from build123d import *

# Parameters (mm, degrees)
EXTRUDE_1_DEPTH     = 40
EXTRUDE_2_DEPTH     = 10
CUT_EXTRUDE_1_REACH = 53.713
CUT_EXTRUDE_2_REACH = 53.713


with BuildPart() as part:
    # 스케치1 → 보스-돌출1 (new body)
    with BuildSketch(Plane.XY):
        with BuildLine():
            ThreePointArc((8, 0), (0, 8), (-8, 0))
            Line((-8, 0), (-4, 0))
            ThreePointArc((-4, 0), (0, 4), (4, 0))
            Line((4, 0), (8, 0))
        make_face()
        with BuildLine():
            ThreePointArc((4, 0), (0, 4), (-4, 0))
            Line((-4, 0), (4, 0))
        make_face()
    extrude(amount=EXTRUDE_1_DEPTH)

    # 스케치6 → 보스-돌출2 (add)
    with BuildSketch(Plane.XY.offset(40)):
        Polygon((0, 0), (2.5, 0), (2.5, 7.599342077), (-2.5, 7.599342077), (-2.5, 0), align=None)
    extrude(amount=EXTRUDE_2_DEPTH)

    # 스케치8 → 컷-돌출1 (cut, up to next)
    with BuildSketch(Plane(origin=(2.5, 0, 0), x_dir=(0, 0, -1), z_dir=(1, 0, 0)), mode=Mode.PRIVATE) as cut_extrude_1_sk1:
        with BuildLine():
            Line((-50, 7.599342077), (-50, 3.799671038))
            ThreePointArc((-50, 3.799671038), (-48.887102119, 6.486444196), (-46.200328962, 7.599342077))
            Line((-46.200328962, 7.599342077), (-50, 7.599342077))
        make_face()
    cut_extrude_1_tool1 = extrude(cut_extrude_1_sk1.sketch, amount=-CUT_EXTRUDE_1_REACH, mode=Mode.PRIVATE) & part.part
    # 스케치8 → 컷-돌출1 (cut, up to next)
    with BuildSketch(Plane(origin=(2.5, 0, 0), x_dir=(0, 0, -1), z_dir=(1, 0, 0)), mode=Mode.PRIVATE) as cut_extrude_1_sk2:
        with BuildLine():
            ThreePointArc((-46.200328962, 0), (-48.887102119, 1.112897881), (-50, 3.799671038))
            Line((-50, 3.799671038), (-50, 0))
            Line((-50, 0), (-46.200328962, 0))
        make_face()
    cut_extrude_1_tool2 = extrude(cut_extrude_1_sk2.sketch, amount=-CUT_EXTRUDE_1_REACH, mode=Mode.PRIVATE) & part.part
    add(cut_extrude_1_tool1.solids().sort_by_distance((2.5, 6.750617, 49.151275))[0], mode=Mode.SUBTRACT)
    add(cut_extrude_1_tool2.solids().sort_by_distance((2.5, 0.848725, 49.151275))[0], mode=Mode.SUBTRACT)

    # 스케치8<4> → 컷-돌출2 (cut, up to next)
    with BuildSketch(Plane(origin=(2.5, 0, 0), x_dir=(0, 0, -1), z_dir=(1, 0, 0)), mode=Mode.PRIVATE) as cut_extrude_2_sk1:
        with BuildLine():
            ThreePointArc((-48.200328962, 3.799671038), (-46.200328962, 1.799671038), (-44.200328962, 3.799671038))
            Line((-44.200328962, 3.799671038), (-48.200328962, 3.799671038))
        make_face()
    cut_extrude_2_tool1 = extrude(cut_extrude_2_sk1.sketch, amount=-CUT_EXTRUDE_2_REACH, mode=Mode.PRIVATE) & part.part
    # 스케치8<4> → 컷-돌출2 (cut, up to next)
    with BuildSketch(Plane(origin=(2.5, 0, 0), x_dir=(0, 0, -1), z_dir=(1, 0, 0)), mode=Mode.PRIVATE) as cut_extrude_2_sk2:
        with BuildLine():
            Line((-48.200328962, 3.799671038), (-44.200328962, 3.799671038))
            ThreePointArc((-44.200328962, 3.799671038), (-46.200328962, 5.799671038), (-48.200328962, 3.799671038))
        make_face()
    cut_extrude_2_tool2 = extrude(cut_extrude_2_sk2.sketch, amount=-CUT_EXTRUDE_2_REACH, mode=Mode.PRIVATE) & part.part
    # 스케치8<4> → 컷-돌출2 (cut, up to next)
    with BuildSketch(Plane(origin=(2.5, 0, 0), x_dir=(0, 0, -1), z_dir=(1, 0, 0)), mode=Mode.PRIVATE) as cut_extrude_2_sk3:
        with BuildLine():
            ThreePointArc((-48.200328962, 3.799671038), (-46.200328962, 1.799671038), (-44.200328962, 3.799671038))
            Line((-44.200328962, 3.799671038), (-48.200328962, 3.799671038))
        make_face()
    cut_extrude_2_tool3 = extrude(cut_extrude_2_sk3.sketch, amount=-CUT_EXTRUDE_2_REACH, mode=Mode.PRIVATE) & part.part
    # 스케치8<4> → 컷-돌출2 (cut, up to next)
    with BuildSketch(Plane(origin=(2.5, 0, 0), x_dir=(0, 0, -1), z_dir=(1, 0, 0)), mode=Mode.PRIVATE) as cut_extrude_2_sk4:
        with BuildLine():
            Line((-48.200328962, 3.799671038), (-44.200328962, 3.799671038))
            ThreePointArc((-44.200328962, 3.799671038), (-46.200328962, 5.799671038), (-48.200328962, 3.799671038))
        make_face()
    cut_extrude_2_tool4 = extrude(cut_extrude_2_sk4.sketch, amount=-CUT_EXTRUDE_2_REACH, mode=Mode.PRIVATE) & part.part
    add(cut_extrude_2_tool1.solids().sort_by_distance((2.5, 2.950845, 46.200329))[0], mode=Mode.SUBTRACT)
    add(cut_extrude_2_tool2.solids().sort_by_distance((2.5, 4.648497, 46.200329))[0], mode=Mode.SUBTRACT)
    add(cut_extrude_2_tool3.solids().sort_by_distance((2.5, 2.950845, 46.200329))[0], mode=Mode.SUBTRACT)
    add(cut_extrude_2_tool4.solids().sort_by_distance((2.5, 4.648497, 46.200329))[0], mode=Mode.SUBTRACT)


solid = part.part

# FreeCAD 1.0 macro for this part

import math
import FreeCAD as App
import Part
import Sketcher
from FreeCAD import Vector
Q = App.Units.Quantity


def add_polygon(sketch, points):
    """Adds a closed chain of lines whose ends are joined by coincident constraints."""
    first, n = sketch.GeometryCount, len(points)
    for a, b in zip(points, points[1:] + points[:1]):
        sketch.addGeometry(Part.LineSegment(App.Vector(*a, 0), App.Vector(*b, 0)), False)
    for i in range(n):
        sketch.addConstraint(Sketcher.Constraint("Coincident", first + i, 2, first + (i + 1) % n, 1))

doc = App.newDocument("Part")
params = doc.addObject("Spreadsheet::Sheet", "Params")
for row, (alias, value) in enumerate([
    ("sketch1_radius", "8 mm"),
    ("pad1_length", "40 mm"),
    ("sketch2_width", "5 mm"),
    ("pad2_length", "10 mm"),
    ("sketch5_radius", "2 mm"),
    ("sketch6_radius", "2 mm"),
    ("sketch7_radius", "2 mm"),
    ("pocket5_length", "5 mm"),
    ("sketch8_radius", "2 mm"),
    ("pocket6_length", "5 mm"),
], start=1):
    params.set(f"A{row}", alias)
    params.set(f"B{row}", "=" + value)
    params.setAlias(f"B{row}", alias)

body = doc.addObject("PartDesign::Body", "Body")

# Sketch on XY plane
sketch1 = doc.addObject("Sketcher::SketchObject", "Sketch")
body.addObject(sketch1)
sketch1.AttachmentSupport = (doc.XY_Plane, [""])
sketch1.MapMode = "FlatFace"
sketch1.addGeometry([
    Part.ArcOfCircle(Part.Circle(Vector(0, 0, 0), Vector(0, 0, 1), 8), math.radians(0), math.radians(180)),
    Part.LineSegment(Vector(-8, 0, 0), Vector(8, 0, 0)),
], False)
sketch1.addConstraint([
    Sketcher.Constraint("Coincident", 0, 1, 1, 2),
    Sketcher.Constraint("Coincident", 1, 1, 0, 2),
    Sketcher.Constraint("Horizontal", 1),
    Sketcher.Constraint("Coincident", 0, 3, -1, 1),
    Sketcher.Constraint("PointOnObject", 0, 1, -1),
    Sketcher.Constraint("Radius", 0, Q("8 mm")),
])
sketch1.setExpression("Constraints[5]", "Params.sketch1_radius")
pad1 = doc.addObject("PartDesign::Pad", "Pad")
body.addObject(pad1)
pad1.Profile = sketch1
pad1.setExpression("Length", "Params.pad1_length")

# Sketch on XY plane
sketch2 = doc.addObject("Sketcher::SketchObject", "Sketch001")
body.addObject(sketch2)
sketch2.AttachmentSupport = (doc.XY_Plane, [""])
sketch2.MapMode = "FlatFace"
sketch2.AttachmentOffset = App.Placement(Vector(0, 0, 40), App.Rotation())
add_polygon(sketch2, [(2, 0), (2, 8), (-2, 8), (-2, 0)])  # lines 0-3
sketch2.addConstraint([
    Sketcher.Constraint("Vertical", 0),
    Sketcher.Constraint("Horizontal", 1),
    Sketcher.Constraint("Vertical", 2),
    Sketcher.Constraint("Horizontal", 3),
    Sketcher.Constraint("Symmetric", 2, 2, 3, 2, -1, 1),
    Sketcher.Constraint("DistanceX", 1, 2, 1, 1, Q("5 mm")),
    Sketcher.Constraint("DistanceY", 0, 1, 0, 2, Q("7.599342 mm")),
])
sketch2.setExpression("Constraints[9]", "Params.sketch2_width")
pad2 = doc.addObject("PartDesign::Pad", "Pad001")
body.addObject(pad2)
pad2.Profile = sketch2
pad2.setExpression("Length", "Params.pad2_length")

# Sketch on YZ plane
sketch3 = doc.addObject("Sketcher::SketchObject", "Sketch002")
body.addObject(sketch3)
sketch3.AttachmentSupport = (doc.YZ_Plane, [""])
sketch3.MapMode = "FlatFace"
sketch3.AttachmentOffset = App.Placement(Vector(0, 0, 2.5), App.Rotation())
sketch3.addGeometry([
    Part.LineSegment(Vector(7.6, 50, 0), Vector(3.8, 50, 0)),
    Part.ArcOfCircle(Part.Circle(Vector(3.8, 46.2, 0), Vector(0, 0, 1), 3.8), math.radians(0), math.radians(90)),
    Part.LineSegment(Vector(7.6, 46.2, 0), Vector(7.6, 50, 0)),
], False)
sketch3.addConstraint([
    Sketcher.Constraint("Tangent", 0, 2, 1, 2),
    Sketcher.Constraint("Tangent", 1, 1, 2, 1),
    Sketcher.Constraint("Coincident", 2, 2, 0, 1),
    Sketcher.Constraint("Horizontal", 0),
    Sketcher.Constraint("Vertical", 2),
    Sketcher.Constraint("DistanceY", -1, 1, 0, 2, Q("50 mm")),
    Sketcher.Constraint("Radius", 1, Q("3.799671 mm")),
    Sketcher.Constraint("DistanceX", -1, 1, 1, 3, Q("3.799671 mm")),
])
pocket1 = doc.addObject("PartDesign::Pocket", "Pocket")
body.addObject(pocket1)
pocket1.Profile = sketch3
pocket1.Type = "UpToFirst"

# Sketch on YZ plane
sketch4 = doc.addObject("Sketcher::SketchObject", "Sketch003")
body.addObject(sketch4)
sketch4.AttachmentSupport = (doc.YZ_Plane, [""])
sketch4.MapMode = "FlatFace"
sketch4.AttachmentOffset = App.Placement(Vector(0, 0, 2.5), App.Rotation())
sketch4.addGeometry([
    Part.ArcOfCircle(Part.Circle(Vector(3.8, 46.2, 0), Vector(0, 0, 1), 3.8), math.radians(90), math.radians(180)),
    Part.LineSegment(Vector(3.8, 50, 0), Vector(0, 50, 0)),
    Part.LineSegment(Vector(0, 50, 0), Vector(0, 46.2, 0)),
], False)
sketch4.addConstraint([
    Sketcher.Constraint("Tangent", 0, 1, 1, 1),
    Sketcher.Constraint("Coincident", 1, 2, 2, 1),
    Sketcher.Constraint("Tangent", 2, 2, 0, 2),
    Sketcher.Constraint("Horizontal", 1),
    Sketcher.Constraint("Vertical", 2),
    Sketcher.Constraint("PointOnObject", 1, 2, -2),
    Sketcher.Constraint("DistanceY", -1, 1, 0, 1, Q("50 mm")),
    Sketcher.Constraint("Radius", 0, Q("3.799671 mm")),
])
pocket2 = doc.addObject("PartDesign::Pocket", "Pocket001")
body.addObject(pocket2)
pocket2.Profile = sketch4
pocket2.Type = "UpToFirst"

# Sketch on YZ plane
sketch5 = doc.addObject("Sketcher::SketchObject", "Sketch004")
body.addObject(sketch5)
sketch5.AttachmentSupport = (doc.YZ_Plane, [""])
sketch5.MapMode = "FlatFace"
sketch5.AttachmentOffset = App.Placement(Vector(0, 0, 2.5), App.Rotation())
sketch5.addGeometry([
    Part.ArcOfCircle(Part.Circle(Vector(3.8, 46.2, 0), Vector(0, 0, 1), 2), math.radians(90), math.radians(270)),
    Part.LineSegment(Vector(3.8, 44.2, 0), Vector(3.8, 48.2, 0)),
], False)
sketch5.addConstraint([
    Sketcher.Constraint("Coincident", 0, 1, 1, 2),
    Sketcher.Constraint("Coincident", 1, 1, 0, 2),
    Sketcher.Constraint("Vertical", 1),
    Sketcher.Constraint("Radius", 0, Q("2 mm")),
    Sketcher.Constraint("DistanceX", -1, 1, 0, 3, Q("3.799671 mm")),
    Sketcher.Constraint("DistanceY", -1, 1, 0, 3, Q("46.200329 mm")),
    Sketcher.Constraint("DistanceX", -1, 1, 0, 1, Q("3.799671 mm")),
])
sketch5.setExpression("Constraints[3]", "Params.sketch5_radius")
pocket3 = doc.addObject("PartDesign::Pocket", "Pocket002")
body.addObject(pocket3)
pocket3.Profile = sketch5
pocket3.Type = "UpToFirst"

# Sketch on YZ plane
sketch6 = doc.addObject("Sketcher::SketchObject", "Sketch005")
body.addObject(sketch6)
sketch6.AttachmentSupport = (doc.YZ_Plane, [""])
sketch6.MapMode = "FlatFace"
sketch6.AttachmentOffset = App.Placement(Vector(0, 0, 2.5), App.Rotation())
sketch6.addGeometry([
    Part.LineSegment(Vector(3.8, 48.2, 0), Vector(3.8, 44.2, 0)),
    Part.ArcOfCircle(Part.Circle(Vector(3.8, 46.2, 0), Vector(0, 0, 1), 2), math.radians(-90), math.radians(90)),
], False)
sketch6.addConstraint([
    Sketcher.Constraint("Coincident", 0, 1, 1, 2),
    Sketcher.Constraint("Coincident", 1, 1, 0, 2),
    Sketcher.Constraint("Vertical", 0),
    Sketcher.Constraint("Vertical", 1, 3, 0, 1),
    Sketcher.Constraint("Radius", 1, Q("2 mm")),
    Sketcher.Constraint("DistanceX", -1, 1, 1, 3, Q("3.799671 mm")),
    Sketcher.Constraint("DistanceY", -1, 1, 1, 3, Q("46.200329 mm")),
])
sketch6.setExpression("Constraints[4]", "Params.sketch6_radius")
pocket4 = doc.addObject("PartDesign::Pocket", "Pocket003")
body.addObject(pocket4)
pocket4.Profile = sketch6
pocket4.Type = "UpToFirst"

# Sketch on YZ plane
sketch7 = doc.addObject("Sketcher::SketchObject", "Sketch006")
body.addObject(sketch7)
sketch7.AttachmentSupport = (doc.YZ_Plane, [""])
sketch7.MapMode = "FlatFace"
sketch7.AttachmentOffset = App.Placement(Vector(0, 0, 2.5), App.Rotation())
sketch7.addGeometry([
    Part.ArcOfCircle(Part.Circle(Vector(3.8, 46.2, 0), Vector(0, 0, 1), 2), math.radians(90), math.radians(270)),
    Part.LineSegment(Vector(3.8, 44.2, 0), Vector(3.8, 48.2, 0)),
], False)
sketch7.addConstraint([
    Sketcher.Constraint("Coincident", 0, 1, 1, 2),
    Sketcher.Constraint("Coincident", 1, 1, 0, 2),
    Sketcher.Constraint("Vertical", 1),
    Sketcher.Constraint("Radius", 0, Q("2 mm")),
    Sketcher.Constraint("DistanceX", -1, 1, 0, 3, Q("3.799671 mm")),
    Sketcher.Constraint("DistanceY", -1, 1, 0, 3, Q("46.200329 mm")),
    Sketcher.Constraint("DistanceX", -1, 1, 0, 1, Q("3.799671 mm")),
])
sketch7.setExpression("Constraints[3]", "Params.sketch7_radius")
pocket5 = doc.addObject("PartDesign::Pocket", "Pocket004")
body.addObject(pocket5)
pocket5.Profile = sketch7
pocket5.setExpression("Length", "Params.pocket5_length")

# Sketch on YZ plane
sketch8 = doc.addObject("Sketcher::SketchObject", "Sketch007")
body.addObject(sketch8)
sketch8.AttachmentSupport = (doc.YZ_Plane, [""])
sketch8.MapMode = "FlatFace"
sketch8.AttachmentOffset = App.Placement(Vector(0, 0, 2.5), App.Rotation())
sketch8.addGeometry([
    Part.LineSegment(Vector(3.8, 48.2, 0), Vector(3.8, 44.2, 0)),
    Part.ArcOfCircle(Part.Circle(Vector(3.8, 46.2, 0), Vector(0, 0, 1), 2), math.radians(-90), math.radians(90)),
], False)
sketch8.addConstraint([
    Sketcher.Constraint("Coincident", 0, 1, 1, 2),
    Sketcher.Constraint("Coincident", 1, 1, 0, 2),
    Sketcher.Constraint("Vertical", 0),
    Sketcher.Constraint("Vertical", 1, 3, 0, 1),
    Sketcher.Constraint("Radius", 1, Q("2 mm")),
    Sketcher.Constraint("DistanceX", -1, 1, 1, 3, Q("3.799671 mm")),
    Sketcher.Constraint("DistanceY", -1, 1, 1, 3, Q("46.200329 mm")),
])
sketch8.setExpression("Constraints[4]", "Params.sketch8_radius")
pocket6 = doc.addObject("PartDesign::Pocket", "Pocket005")
body.addObject(pocket6)
pocket6.Profile = sketch8
pocket6.setExpression("Length", "Params.pocket6_length")

doc.recompute()
